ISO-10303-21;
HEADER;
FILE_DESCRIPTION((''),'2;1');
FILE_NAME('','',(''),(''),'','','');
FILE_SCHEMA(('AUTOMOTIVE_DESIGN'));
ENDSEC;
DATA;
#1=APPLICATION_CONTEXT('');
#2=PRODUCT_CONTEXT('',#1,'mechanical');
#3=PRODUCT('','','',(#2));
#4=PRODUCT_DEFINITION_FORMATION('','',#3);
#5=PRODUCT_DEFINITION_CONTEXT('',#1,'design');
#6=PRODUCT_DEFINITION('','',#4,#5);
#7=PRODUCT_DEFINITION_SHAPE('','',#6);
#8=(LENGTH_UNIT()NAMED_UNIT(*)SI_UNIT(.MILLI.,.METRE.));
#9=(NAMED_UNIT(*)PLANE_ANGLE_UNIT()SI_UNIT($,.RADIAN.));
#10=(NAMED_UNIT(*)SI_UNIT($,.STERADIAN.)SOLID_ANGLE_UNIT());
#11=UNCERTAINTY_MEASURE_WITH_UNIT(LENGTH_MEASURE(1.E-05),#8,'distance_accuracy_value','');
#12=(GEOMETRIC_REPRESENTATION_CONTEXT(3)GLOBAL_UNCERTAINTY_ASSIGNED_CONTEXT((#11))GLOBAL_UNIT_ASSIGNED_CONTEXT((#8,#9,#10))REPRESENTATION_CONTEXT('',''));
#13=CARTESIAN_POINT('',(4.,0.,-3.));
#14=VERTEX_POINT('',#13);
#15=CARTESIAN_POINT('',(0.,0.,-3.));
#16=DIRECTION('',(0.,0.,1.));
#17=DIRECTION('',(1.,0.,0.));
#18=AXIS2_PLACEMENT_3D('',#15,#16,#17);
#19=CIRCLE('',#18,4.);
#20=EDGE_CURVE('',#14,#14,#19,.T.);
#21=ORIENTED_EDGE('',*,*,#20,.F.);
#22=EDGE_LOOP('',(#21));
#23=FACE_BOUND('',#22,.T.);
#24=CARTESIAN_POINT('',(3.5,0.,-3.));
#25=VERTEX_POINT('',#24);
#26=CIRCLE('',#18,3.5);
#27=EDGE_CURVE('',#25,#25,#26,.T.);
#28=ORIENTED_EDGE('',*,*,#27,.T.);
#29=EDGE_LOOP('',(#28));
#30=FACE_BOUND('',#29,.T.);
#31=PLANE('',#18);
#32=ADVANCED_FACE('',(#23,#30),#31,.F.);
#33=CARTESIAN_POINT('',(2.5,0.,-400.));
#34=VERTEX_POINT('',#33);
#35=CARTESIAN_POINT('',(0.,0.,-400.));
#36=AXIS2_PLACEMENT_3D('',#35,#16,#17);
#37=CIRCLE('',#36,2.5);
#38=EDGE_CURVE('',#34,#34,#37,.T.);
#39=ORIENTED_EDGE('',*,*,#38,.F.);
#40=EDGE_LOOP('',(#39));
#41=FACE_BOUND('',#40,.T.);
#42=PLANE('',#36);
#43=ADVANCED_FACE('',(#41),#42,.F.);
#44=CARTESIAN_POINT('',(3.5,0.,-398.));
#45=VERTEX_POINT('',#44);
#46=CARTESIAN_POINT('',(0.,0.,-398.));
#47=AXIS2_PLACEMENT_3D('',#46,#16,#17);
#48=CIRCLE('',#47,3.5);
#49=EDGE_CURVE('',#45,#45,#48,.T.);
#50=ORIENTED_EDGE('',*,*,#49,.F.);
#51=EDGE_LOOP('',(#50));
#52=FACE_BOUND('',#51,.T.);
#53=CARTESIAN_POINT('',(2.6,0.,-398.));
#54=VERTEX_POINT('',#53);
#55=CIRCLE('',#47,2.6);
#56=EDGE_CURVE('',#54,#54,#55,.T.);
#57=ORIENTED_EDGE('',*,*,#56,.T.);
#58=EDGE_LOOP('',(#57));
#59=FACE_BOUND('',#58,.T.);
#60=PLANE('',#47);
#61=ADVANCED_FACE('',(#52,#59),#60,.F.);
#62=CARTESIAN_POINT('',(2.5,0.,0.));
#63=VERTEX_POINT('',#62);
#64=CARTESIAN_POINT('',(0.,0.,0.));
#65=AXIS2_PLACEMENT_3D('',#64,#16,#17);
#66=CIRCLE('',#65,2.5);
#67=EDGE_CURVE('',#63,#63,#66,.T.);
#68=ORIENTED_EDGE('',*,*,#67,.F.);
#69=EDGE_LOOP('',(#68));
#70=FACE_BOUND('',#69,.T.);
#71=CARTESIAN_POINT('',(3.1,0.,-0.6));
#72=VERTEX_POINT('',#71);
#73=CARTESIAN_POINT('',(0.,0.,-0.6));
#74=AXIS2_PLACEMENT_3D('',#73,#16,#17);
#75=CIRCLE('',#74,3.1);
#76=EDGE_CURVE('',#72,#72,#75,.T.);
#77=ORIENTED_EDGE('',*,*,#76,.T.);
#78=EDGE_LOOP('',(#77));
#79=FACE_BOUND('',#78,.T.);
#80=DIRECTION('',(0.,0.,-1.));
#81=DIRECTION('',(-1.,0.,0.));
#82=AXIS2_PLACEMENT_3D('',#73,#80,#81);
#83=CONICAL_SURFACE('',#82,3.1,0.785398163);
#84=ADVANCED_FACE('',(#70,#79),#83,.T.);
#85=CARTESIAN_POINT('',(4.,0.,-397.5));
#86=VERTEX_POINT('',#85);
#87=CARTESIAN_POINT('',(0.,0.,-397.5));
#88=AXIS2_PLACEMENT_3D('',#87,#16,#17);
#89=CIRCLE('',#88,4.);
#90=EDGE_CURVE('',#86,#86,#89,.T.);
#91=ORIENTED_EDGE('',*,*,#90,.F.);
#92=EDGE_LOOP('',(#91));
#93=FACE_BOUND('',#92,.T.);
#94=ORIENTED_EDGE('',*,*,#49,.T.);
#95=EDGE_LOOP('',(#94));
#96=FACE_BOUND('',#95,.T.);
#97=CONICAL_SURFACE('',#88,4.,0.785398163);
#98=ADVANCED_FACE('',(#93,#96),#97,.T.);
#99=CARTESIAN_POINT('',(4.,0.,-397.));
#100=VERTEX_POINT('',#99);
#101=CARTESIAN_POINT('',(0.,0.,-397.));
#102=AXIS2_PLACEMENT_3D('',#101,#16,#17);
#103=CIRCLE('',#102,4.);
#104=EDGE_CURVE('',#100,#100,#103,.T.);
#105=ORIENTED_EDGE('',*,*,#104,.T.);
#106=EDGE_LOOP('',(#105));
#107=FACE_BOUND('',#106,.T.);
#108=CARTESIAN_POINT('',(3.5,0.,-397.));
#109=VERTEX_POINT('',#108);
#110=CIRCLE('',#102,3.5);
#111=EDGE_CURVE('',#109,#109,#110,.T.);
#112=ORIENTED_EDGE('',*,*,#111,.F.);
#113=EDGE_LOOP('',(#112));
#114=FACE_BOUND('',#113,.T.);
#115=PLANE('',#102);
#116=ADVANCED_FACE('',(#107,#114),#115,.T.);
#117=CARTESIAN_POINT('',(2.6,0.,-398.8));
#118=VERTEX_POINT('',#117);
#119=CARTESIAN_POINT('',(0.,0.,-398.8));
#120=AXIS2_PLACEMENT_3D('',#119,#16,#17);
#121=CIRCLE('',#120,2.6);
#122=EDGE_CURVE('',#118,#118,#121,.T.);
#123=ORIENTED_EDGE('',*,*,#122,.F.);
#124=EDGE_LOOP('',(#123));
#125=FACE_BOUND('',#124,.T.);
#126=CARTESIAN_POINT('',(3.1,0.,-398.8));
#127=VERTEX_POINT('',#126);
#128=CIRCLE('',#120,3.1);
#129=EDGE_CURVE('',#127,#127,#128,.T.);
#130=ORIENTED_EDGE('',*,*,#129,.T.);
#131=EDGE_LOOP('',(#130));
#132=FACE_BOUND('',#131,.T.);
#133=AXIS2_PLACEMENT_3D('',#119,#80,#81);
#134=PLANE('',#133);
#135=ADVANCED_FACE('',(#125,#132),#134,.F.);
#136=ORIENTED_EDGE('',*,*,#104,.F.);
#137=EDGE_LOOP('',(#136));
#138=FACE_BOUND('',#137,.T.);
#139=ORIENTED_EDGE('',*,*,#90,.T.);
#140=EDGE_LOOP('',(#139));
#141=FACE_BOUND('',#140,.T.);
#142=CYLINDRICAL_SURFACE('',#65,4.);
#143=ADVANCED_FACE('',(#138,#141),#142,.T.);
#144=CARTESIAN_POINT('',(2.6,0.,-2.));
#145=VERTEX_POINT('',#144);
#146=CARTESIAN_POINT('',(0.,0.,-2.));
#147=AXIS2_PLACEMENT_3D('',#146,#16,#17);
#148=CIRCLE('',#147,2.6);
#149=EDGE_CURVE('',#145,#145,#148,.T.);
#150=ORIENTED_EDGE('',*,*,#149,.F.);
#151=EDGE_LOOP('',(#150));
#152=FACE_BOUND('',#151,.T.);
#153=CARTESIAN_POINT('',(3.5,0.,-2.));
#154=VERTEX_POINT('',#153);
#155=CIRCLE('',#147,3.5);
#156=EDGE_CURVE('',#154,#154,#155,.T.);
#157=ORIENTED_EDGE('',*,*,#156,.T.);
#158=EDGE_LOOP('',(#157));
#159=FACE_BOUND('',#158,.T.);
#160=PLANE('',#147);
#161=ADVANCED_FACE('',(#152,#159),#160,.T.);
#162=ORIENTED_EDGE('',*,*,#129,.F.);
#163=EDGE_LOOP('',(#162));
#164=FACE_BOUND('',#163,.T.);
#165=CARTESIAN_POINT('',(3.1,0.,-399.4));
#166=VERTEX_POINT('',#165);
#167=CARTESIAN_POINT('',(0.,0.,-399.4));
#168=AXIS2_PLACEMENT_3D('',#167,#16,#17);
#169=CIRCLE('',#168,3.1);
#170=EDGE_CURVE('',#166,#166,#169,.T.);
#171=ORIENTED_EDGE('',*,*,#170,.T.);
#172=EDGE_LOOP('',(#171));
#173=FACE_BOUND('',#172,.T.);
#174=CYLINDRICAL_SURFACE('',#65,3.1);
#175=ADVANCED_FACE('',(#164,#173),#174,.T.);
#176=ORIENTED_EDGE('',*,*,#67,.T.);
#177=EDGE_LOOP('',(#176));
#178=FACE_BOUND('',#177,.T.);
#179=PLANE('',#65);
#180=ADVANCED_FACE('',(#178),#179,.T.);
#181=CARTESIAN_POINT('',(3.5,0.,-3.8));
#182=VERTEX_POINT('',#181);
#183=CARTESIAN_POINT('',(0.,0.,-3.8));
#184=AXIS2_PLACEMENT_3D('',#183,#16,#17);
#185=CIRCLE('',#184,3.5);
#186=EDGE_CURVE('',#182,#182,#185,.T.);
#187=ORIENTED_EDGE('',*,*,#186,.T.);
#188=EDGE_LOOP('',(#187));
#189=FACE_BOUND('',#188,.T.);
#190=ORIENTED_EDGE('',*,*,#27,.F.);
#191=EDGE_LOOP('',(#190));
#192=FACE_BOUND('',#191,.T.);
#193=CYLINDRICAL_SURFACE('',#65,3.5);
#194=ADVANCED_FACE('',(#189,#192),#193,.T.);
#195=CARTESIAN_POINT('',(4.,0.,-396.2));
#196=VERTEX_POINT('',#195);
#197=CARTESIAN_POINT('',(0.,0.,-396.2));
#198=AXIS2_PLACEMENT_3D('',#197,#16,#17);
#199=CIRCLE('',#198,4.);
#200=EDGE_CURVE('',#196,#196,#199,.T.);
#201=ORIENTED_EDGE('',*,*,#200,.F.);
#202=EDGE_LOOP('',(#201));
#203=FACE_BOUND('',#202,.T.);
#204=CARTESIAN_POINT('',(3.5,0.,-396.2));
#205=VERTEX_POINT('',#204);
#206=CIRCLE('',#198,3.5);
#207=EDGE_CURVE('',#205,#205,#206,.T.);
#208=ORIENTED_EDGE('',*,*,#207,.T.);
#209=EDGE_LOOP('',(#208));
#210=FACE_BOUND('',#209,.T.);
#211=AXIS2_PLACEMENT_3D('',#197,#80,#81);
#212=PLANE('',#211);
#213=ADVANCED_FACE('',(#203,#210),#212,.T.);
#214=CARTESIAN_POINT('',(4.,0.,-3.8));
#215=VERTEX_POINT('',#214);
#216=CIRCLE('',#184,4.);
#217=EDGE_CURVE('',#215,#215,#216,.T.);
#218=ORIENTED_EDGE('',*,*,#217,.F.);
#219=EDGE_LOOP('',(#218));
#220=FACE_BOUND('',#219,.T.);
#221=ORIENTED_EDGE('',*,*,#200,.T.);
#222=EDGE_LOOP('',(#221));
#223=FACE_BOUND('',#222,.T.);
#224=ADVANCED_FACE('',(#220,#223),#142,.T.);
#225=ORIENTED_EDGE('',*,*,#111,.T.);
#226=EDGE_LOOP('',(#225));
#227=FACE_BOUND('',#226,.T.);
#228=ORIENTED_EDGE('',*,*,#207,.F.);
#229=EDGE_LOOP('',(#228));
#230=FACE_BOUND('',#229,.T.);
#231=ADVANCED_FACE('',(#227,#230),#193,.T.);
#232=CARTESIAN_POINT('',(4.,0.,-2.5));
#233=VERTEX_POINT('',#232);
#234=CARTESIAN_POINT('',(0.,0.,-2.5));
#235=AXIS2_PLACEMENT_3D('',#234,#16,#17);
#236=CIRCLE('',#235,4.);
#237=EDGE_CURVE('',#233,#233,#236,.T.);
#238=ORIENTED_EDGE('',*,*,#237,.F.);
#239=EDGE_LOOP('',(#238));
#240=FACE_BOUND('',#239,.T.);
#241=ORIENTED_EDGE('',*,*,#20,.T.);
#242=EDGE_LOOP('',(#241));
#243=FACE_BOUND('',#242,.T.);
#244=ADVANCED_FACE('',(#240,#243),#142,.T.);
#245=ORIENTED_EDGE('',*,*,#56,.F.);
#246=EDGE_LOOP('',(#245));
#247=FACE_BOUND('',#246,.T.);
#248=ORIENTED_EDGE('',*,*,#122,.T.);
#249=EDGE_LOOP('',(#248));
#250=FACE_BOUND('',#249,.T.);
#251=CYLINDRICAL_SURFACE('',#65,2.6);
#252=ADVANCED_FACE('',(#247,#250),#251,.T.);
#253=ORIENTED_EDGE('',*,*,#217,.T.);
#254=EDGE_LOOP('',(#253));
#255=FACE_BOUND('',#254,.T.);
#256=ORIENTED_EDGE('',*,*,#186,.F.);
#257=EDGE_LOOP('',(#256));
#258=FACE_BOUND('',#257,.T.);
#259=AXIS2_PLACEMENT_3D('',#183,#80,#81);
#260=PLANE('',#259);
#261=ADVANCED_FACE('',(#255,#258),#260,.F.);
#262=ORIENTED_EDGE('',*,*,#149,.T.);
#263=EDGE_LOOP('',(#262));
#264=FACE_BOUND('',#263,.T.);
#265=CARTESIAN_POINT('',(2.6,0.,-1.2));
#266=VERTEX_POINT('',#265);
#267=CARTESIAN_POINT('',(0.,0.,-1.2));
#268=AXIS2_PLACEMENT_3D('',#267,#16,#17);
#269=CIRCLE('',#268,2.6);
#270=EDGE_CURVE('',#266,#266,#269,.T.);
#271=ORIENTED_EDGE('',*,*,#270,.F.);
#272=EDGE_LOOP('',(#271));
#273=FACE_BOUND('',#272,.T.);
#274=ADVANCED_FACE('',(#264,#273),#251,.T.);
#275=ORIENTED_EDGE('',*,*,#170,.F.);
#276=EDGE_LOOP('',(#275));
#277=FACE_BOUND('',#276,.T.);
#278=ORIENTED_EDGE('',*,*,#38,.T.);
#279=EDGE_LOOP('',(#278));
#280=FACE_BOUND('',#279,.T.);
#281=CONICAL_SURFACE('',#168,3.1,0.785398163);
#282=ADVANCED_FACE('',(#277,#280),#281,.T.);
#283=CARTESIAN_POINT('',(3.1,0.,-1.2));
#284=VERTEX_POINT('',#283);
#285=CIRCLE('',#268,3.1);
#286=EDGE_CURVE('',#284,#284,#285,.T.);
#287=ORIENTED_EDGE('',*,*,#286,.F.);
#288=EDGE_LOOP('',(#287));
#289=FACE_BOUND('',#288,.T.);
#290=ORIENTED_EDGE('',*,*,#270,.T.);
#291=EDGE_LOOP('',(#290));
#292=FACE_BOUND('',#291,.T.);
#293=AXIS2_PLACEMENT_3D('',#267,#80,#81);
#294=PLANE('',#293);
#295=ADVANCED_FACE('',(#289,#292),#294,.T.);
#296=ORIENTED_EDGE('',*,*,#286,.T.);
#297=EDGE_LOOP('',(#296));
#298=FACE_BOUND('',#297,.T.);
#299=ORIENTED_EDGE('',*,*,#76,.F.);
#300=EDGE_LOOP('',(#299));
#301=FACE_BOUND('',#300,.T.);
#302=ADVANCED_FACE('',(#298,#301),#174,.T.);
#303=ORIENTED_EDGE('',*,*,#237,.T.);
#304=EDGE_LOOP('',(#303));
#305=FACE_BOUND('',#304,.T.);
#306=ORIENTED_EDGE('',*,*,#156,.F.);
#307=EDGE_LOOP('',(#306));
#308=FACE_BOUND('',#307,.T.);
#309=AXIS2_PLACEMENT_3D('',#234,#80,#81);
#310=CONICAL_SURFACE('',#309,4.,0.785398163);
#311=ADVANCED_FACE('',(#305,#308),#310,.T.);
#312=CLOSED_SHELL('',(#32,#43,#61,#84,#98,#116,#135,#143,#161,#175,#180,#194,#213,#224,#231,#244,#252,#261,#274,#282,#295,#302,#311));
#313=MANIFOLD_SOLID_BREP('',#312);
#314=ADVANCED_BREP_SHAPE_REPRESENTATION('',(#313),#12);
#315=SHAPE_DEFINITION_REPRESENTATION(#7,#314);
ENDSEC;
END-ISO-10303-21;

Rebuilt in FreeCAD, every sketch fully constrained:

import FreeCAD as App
import Part
import Sketcher

V = App.Vector
Q = App.Units.Quantity

doc = App.newDocument("Part")
body = doc.addObject("PartDesign::Body", "Body")

# Sketch on XZ plane
sketch1 = body.newObject("Sketcher::SketchObject", "Sketch")
sketch1.AttachmentSupport = (doc.getObject("XZ_Plane"), [""])
sketch1.MapMode = "FlatFace"
sketch1.addGeometry([
    Part.LineSegment(V(-2.5, 0, 0), V(0, 0, 0)),  # 0
    Part.LineSegment(V(0, 0, 0), V(0, -400, 0)),  # 1
    Part.LineSegment(V(0, -400, 0), V(-2.5, -400, 0)),  # 2
    Part.LineSegment(V(-2.5, -400, 0), V(-3.1, -399.4, 0)),  # 3
    Part.LineSegment(V(-3.1, -399.4, 0), V(-3.1, -398.8, 0)),  # 4
    Part.LineSegment(V(-3.1, -398.8, 0), V(-2.6, -398.8, 0)),  # 5
    Part.LineSegment(V(-2.6, -398.8, 0), V(-2.6, -398, 0)),  # 6
    Part.LineSegment(V(-2.6, -398, 0), V(-3.5, -398, 0)),  # 7
    Part.LineSegment(V(-3.5, -398, 0), V(-4, -397.5, 0)),  # 8
    Part.LineSegment(V(-4, -397.5, 0), V(-4, -397, 0)),  # 9
    Part.LineSegment(V(-4, -397, 0), V(-3.5, -397, 0)),  # 10
    Part.LineSegment(V(-3.5, -397, 0), V(-3.5, -396.2, 0)),  # 11
    Part.LineSegment(V(-3.5, -396.2, 0), V(-4, -396.2, 0)),  # 12
    Part.LineSegment(V(-4, -396.2, 0), V(-4, -3.8, 0)),  # 13
    Part.LineSegment(V(-4, -3.8, 0), V(-3.5, -3.8, 0)),  # 14
    Part.LineSegment(V(-3.5, -3.8, 0), V(-3.5, -3, 0)),  # 15
    Part.LineSegment(V(-3.5, -3, 0), V(-4, -3, 0)),  # 16
    Part.LineSegment(V(-4, -3, 0), V(-4, -2.5, 0)),  # 17
    Part.LineSegment(V(-4, -2.5, 0), V(-3.5, -2, 0)),  # 18
    Part.LineSegment(V(-3.5, -2, 0), V(-2.6, -2, 0)),  # 19
    Part.LineSegment(V(-2.6, -2, 0), V(-2.6, -1.2, 0)),  # 20
    Part.LineSegment(V(-2.6, -1.2, 0), V(-3.1, -1.2, 0)),  # 21
    Part.LineSegment(V(-3.1, -1.2, 0), V(-3.1, -0.6, 0)),  # 22
    Part.LineSegment(V(-3.1, -0.6, 0), V(-2.5, 0, 0)),  # 23
], False)
sketch1.addConstraint([
    Sketcher.Constraint("Coincident", 0, 2, 1, 1),
    Sketcher.Constraint("Coincident", 1, 2, 2, 1),
    Sketcher.Constraint("Coincident", 2, 2, 3, 1),
    Sketcher.Constraint("Coincident", 3, 2, 4, 1),
    Sketcher.Constraint("Coincident", 4, 2, 5, 1),
    Sketcher.Constraint("Coincident", 5, 2, 6, 1),
    Sketcher.Constraint("Coincident", 6, 2, 7, 1),
    Sketcher.Constraint("Coincident", 7, 2, 8, 1),
    Sketcher.Constraint("Coincident", 8, 2, 9, 1),
    Sketcher.Constraint("Coincident", 9, 2, 10, 1),
    Sketcher.Constraint("Coincident", 10, 2, 11, 1),
    Sketcher.Constraint("Coincident", 11, 2, 12, 1),
    Sketcher.Constraint("Coincident", 12, 2, 13, 1),
    Sketcher.Constraint("Coincident", 13, 2, 14, 1),
    Sketcher.Constraint("Coincident", 14, 2, 15, 1),
    Sketcher.Constraint("Coincident", 15, 2, 16, 1),
    Sketcher.Constraint("Coincident", 16, 2, 17, 1),
    Sketcher.Constraint("Coincident", 17, 2, 18, 1),
    Sketcher.Constraint("Coincident", 18, 2, 19, 1),
    Sketcher.Constraint("Coincident", 19, 2, 20, 1),
    Sketcher.Constraint("Coincident", 20, 2, 21, 1),
    Sketcher.Constraint("Coincident", 21, 2, 22, 1),
    Sketcher.Constraint("Coincident", 22, 2, 23, 1),
    Sketcher.Constraint("Coincident", 23, 2, 0, 1),
    Sketcher.Constraint("Horizontal", 0),
    Sketcher.Constraint("Vertical", 1),
    Sketcher.Constraint("Horizontal", 2),
    Sketcher.Constraint("Vertical", 4),
    Sketcher.Constraint("Horizontal", 5),
    Sketcher.Constraint("Vertical", 6),
    Sketcher.Constraint("Horizontal", 7),
    Sketcher.Constraint("Vertical", 9),
    Sketcher.Constraint("Horizontal", 10),
    Sketcher.Constraint("Vertical", 11),
    Sketcher.Constraint("Horizontal", 12),
    Sketcher.Constraint("Vertical", 13),
    Sketcher.Constraint("Horizontal", 14),
    Sketcher.Constraint("Vertical", 15),
    Sketcher.Constraint("Horizontal", 16),
    Sketcher.Constraint("Vertical", 17),
    Sketcher.Constraint("Horizontal", 19),
    Sketcher.Constraint("Vertical", 20),
    Sketcher.Constraint("Horizontal", 21),
    Sketcher.Constraint("Vertical", 22),
    Sketcher.Constraint("Coincident", 0, 2, -1, 1),
    Sketcher.Constraint("Parallel", 3, 8),
    Sketcher.Constraint("Perpendicular", 8, 18),
    Sketcher.Constraint("Parallel", 18, 23),
    Sketcher.Constraint("Vertical", 7, 2, 10, 2),
    Sketcher.Constraint("Vertical", 9, 2, 12, 2),
    Sketcher.Constraint("Vertical", 11, 2, 14, 2),
    Sketcher.Constraint("Vertical", 13, 2, 16, 2),
    Sketcher.Constraint("Vertical", 15, 2, 18, 2),
    Sketcher.Constraint("Vertical", 6, 2, 19, 2),
    Sketcher.Constraint("Vertical", 4, 2, 21, 2),
    Sketcher.Constraint("Vertical", 2, 2, 23, 2),
    Sketcher.Constraint("Equal", 5, 10),
    Sketcher.Constraint("Equal", 21, 9),
    Sketcher.Constraint("Equal", 6, 11),
    Sketcher.Constraint("Equal", 11, 15),
    Sketcher.Constraint("Equal", 9, 17),
    Sketcher.Constraint("Equal", 15, 20),
    Sketcher.Constraint("Equal", 4, 22),
    Sketcher.Constraint("Equal", 8, 18),
    Sketcher.Constraint("DistanceY", 1, 2, 1, 1, Q("400 mm")),
    Sketcher.Constraint("DistanceX", 0, 1, 0, 2, Q("2.5 mm")),
    Sketcher.Constraint("DistanceX", 5, 1, 5, 2, Q("0.5 mm")),
    Sketcher.Constraint("DistanceX", 7, 2, 7, 1, Q("0.9 mm")),
    Sketcher.Constraint("DistanceY", 4, 1, 4, 2, Q("0.6 mm")),
    Sketcher.Constraint("DistanceY", 6, 1, 6, 2, Q("0.8 mm")),
    Sketcher.Constraint("DistanceY", 13, 1, 13, 2, Q("392.4 mm")),
])
revolution = body.newObject("PartDesign::Revolution", "Revolution")
revolution.Profile = sketch1
revolution.ReferenceAxis = (sketch1, ["V_Axis"])
revolution.Angle = 360

doc.recompute()
